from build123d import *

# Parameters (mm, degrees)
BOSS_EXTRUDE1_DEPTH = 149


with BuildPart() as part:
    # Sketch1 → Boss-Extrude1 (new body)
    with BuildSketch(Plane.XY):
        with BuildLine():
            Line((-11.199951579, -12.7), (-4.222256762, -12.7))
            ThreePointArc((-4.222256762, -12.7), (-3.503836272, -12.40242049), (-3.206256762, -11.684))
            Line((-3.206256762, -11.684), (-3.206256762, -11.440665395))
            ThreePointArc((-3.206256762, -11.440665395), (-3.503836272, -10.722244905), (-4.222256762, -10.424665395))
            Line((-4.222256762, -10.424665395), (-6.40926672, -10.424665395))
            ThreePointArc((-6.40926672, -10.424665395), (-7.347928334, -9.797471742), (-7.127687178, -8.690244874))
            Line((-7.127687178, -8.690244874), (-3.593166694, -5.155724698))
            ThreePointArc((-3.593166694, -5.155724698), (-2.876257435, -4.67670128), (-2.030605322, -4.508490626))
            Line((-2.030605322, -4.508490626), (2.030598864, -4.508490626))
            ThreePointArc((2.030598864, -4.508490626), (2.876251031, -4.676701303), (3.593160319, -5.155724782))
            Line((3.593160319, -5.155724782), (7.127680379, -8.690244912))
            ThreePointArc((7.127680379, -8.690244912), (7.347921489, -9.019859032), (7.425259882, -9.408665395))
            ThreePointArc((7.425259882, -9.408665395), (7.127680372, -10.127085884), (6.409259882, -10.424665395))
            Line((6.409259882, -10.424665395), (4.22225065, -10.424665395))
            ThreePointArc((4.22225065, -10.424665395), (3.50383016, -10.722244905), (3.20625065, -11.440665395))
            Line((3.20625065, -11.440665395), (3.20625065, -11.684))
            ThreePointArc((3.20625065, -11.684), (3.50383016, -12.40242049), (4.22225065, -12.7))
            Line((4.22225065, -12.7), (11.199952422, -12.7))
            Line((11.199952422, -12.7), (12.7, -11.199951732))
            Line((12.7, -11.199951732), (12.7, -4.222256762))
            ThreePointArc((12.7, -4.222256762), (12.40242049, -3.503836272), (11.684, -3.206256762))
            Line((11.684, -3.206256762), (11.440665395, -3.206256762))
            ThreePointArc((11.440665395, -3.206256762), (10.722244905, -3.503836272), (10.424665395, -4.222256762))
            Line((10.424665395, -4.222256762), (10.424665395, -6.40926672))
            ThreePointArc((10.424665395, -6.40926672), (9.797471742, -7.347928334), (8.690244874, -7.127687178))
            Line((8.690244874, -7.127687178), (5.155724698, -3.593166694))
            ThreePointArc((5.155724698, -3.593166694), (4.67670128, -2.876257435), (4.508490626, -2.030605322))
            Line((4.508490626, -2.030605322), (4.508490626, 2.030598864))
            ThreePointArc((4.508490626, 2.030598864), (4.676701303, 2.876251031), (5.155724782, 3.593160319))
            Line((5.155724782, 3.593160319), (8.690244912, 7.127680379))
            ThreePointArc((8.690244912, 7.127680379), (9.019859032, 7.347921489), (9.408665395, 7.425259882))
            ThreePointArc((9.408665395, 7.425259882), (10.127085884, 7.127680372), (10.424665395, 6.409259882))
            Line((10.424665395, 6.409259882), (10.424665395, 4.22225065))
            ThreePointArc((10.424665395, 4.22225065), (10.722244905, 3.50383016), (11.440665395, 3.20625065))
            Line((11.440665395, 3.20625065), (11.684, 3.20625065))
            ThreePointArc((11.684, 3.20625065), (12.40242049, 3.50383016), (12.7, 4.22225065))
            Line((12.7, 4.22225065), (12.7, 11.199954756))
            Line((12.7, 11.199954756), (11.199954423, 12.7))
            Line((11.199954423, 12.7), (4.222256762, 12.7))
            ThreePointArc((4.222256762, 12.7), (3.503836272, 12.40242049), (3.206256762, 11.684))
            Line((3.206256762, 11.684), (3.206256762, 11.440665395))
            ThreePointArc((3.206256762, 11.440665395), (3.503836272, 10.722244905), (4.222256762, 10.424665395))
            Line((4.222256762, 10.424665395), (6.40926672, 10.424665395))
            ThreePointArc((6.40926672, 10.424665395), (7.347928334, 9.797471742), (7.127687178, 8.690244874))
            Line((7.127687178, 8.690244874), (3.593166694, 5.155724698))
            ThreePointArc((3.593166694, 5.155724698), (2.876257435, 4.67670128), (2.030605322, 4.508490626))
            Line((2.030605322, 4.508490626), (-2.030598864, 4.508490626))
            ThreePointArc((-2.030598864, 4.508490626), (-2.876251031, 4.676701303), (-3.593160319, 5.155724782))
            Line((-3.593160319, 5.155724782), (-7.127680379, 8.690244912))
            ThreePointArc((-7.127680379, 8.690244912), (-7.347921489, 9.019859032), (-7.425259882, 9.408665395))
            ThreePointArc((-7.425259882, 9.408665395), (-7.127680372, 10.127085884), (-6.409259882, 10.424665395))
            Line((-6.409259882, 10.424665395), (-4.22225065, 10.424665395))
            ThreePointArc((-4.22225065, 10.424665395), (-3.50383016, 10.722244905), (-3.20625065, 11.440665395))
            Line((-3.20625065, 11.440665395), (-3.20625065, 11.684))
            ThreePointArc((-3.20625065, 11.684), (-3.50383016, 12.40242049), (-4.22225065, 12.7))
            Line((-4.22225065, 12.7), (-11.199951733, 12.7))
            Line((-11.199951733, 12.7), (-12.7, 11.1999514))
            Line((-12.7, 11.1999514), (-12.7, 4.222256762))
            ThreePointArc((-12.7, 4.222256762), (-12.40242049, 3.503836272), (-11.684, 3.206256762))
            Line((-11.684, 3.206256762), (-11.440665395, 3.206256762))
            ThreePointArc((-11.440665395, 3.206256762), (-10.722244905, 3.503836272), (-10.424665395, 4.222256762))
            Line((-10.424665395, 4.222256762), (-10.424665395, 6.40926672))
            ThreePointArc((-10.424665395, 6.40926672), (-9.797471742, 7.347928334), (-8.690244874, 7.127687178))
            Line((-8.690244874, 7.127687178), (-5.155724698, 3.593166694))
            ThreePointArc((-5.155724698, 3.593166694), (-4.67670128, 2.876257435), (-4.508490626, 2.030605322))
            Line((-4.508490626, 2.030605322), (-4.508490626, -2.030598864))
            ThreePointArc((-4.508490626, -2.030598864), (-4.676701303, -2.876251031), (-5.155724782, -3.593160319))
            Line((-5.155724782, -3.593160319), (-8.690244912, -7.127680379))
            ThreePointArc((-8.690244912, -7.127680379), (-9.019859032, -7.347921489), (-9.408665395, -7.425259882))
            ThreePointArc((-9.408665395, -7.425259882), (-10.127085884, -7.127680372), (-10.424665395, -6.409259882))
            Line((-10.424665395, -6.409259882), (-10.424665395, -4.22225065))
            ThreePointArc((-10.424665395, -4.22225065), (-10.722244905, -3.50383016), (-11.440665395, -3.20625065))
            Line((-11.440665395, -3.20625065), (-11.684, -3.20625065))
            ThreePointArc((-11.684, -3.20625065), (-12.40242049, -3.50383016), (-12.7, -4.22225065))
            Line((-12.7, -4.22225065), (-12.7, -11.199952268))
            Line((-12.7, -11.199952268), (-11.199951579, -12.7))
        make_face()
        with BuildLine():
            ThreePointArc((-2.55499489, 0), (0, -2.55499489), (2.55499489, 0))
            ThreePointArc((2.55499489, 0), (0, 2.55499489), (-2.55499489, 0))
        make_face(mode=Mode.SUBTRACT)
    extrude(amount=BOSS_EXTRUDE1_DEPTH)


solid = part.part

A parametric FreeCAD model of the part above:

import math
import FreeCAD as App
import Part
import Sketcher
from FreeCAD import Vector

doc = App.newDocument("Part")
body = doc.addObject("PartDesign::Body", "Body")

# Sketch on XY plane
sketch1 = body.newObject("Sketcher::SketchObject", "Sketch")
sketch1.AttachmentSupport = (doc.getObject("XY_Plane"), [""])
sketch1.MapMode = "FlatFace"
sketch1.addGeometry([
    Part.LineSegment(Vector(-11.2, -12.7, 0), Vector(-4.22, -12.7, 0)),  # 0
    Part.ArcOfCircle(Part.Circle(Vector(-4.22, -11.68, 0), Vector(0, 0, 1), 1.02), math.radians(-90), math.radians(0)),  # 1
    Part.LineSegment(Vector(-3.21, -11.68, 0), Vector(-3.21, -11.44, 0)),  # 2
    Part.ArcOfCircle(Part.Circle(Vector(-4.22, -11.44, 0), Vector(0, 0, 1), 1.02), math.radians(0), math.radians(90)),  # 3
    Part.LineSegment(Vector(-4.22, -10.42, 0), Vector(-6.41, -10.42, 0)),  # 4
    Part.ArcOfCircle(Part.Circle(Vector(-6.41, -9.41, 0), Vector(0, 0, 1), 1.02), math.radians(135), math.radians(270)),  # 5
    Part.LineSegment(Vector(-7.13, -8.69, 0), Vector(-3.59, -5.16, 0)),  # 6
    Part.ArcOfCircle(Part.Circle(Vector(-2.03, -6.72, 0), Vector(0, 0, 1), 2.21), math.radians(90), math.radians(135)),  # 7
    Part.LineSegment(Vector(-2.03, -4.51, 0), Vector(2.03, -4.51, 0)),  # 8
    Part.ArcOfCircle(Part.Circle(Vector(2.03, -6.72, 0), Vector(0, 0, 1), 2.21), math.radians(45), math.radians(90)),  # 9
    Part.LineSegment(Vector(3.59, -5.16, 0), Vector(7.13, -8.69, 0)),  # 10
    Part.ArcOfCircle(Part.Circle(Vector(6.41, -9.41, 0), Vector(0, 0, 1), 1.02), math.radians(0), math.radians(45)),  # 11
    Part.ArcOfCircle(Part.Circle(Vector(6.41, -9.41, 0), Vector(0, 0, 1), 1.02), math.radians(-90), math.radians(0)),  # 12
    Part.LineSegment(Vector(6.41, -10.42, 0), Vector(4.22, -10.42, 0)),  # 13
    Part.ArcOfCircle(Part.Circle(Vector(4.22, -11.44, 0), Vector(0, 0, 1), 1.02), math.radians(90), math.radians(180)),  # 14
    Part.LineSegment(Vector(3.21, -11.44, 0), Vector(3.21, -11.68, 0)),  # 15
    Part.ArcOfCircle(Part.Circle(Vector(4.22, -11.68, 0), Vector(0, 0, 1), 1.02), math.radians(180), math.radians(270)),  # 16
    Part.LineSegment(Vector(4.22, -12.7, 0), Vector(11.2, -12.7, 0)),  # 17
    Part.LineSegment(Vector(11.2, -12.7, 0), Vector(12.7, -11.2, 0)),  # 18
    Part.LineSegment(Vector(12.7, -11.2, 0), Vector(12.7, -4.22, 0)),  # 19
    Part.ArcOfCircle(Part.Circle(Vector(11.68, -4.22, 0), Vector(0, 0, 1), 1.02), math.radians(0), math.radians(90)),  # 20
    Part.LineSegment(Vector(11.68, -3.21, 0), Vector(11.44, -3.21, 0)),  # 21
    Part.ArcOfCircle(Part.Circle(Vector(11.44, -4.22, 0), Vector(0, 0, 1), 1.02), math.radians(90), math.radians(180)),  # 22
    Part.LineSegment(Vector(10.42, -4.22, 0), Vector(10.42, -6.41, 0)),  # 23
    Part.ArcOfCircle(Part.Circle(Vector(9.41, -6.41, 0), Vector(0, 0, 1), 1.02), math.radians(-135), math.radians(0)),  # 24
    Part.LineSegment(Vector(8.69, -7.13, 0), Vector(5.16, -3.59, 0)),  # 25
    Part.ArcOfCircle(Part.Circle(Vector(6.72, -2.03, 0), Vector(0, 0, 1), 2.21), math.radians(180), math.radians(225)),  # 26
    Part.LineSegment(Vector(4.51, -2.03, 0), Vector(4.51, 2.03, 0)),  # 27
    Part.ArcOfCircle(Part.Circle(Vector(6.72, 2.03, 0), Vector(0, 0, 1), 2.21), math.radians(135), math.radians(180)),  # 28
    Part.LineSegment(Vector(5.16, 3.59, 0), Vector(8.69, 7.13, 0)),  # 29
    Part.ArcOfCircle(Part.Circle(Vector(9.41, 6.41, 0), Vector(0, 0, 1), 1.02), math.radians(90), math.radians(135)),  # 30
    Part.ArcOfCircle(Part.Circle(Vector(9.41, 6.41, 0), Vector(0, 0, 1), 1.02), math.radians(0), math.radians(90)),  # 31
    Part.LineSegment(Vector(10.42, 6.41, 0), Vector(10.42, 4.22, 0)),  # 32
    Part.ArcOfCircle(Part.Circle(Vector(11.44, 4.22, 0), Vector(0, 0, 1), 1.02), math.radians(180), math.radians(270)),  # 33
    Part.LineSegment(Vector(11.44, 3.21, 0), Vector(11.68, 3.21, 0)),  # 34
    Part.ArcOfCircle(Part.Circle(Vector(11.68, 4.22, 0), Vector(0, 0, 1), 1.02), math.radians(-90), math.radians(0)),  # 35
    Part.LineSegment(Vector(12.7, 4.22, 0), Vector(12.7, 11.2, 0)),  # 36
    Part.LineSegment(Vector(12.7, 11.2, 0), Vector(11.2, 12.7, 0)),  # 37
    Part.LineSegment(Vector(11.2, 12.7, 0), Vector(4.22, 12.7, 0)),  # 38
    Part.ArcOfCircle(Part.Circle(Vector(4.22, 11.68, 0), Vector(0, 0, 1), 1.02), math.radians(90), math.radians(180)),  # 39
    Part.LineSegment(Vector(3.21, 11.68, 0), Vector(3.21, 11.44, 0)),  # 40
    Part.ArcOfCircle(Part.Circle(Vector(4.22, 11.44, 0), Vector(0, 0, 1), 1.02), math.radians(180), math.radians(270)),  # 41
    Part.LineSegment(Vector(4.22, 10.42, 0), Vector(6.41, 10.42, 0)),  # 42
    Part.ArcOfCircle(Part.Circle(Vector(6.41, 9.41, 0), Vector(0, 0, 1), 1.02), math.radians(-45), math.radians(90)),  # 43
    Part.LineSegment(Vector(7.13, 8.69, 0), Vector(3.59, 5.16, 0)),  # 44
    Part.ArcOfCircle(Part.Circle(Vector(2.03, 6.72, 0), Vector(0, 0, 1), 2.21), math.radians(-90), math.radians(-45)),  # 45
    Part.LineSegment(Vector(2.03, 4.51, 0), Vector(-2.03, 4.51, 0)),  # 46
    Part.ArcOfCircle(Part.Circle(Vector(-2.03, 6.72, 0), Vector(0, 0, 1), 2.21), math.radians(-135), math.radians(-90)),  # 47
    Part.LineSegment(Vector(-3.59, 5.16, 0), Vector(-7.13, 8.69, 0)),  # 48
    Part.ArcOfCircle(Part.Circle(Vector(-6.41, 9.41, 0), Vector(0, 0, 1), 1.02), math.radians(180), math.radians(225)),  # 49
    Part.ArcOfCircle(Part.Circle(Vector(-6.41, 9.41, 0), Vector(0, 0, 1), 1.02), math.radians(90), math.radians(180)),  # 50
    Part.LineSegment(Vector(-6.41, 10.42, 0), Vector(-4.22, 10.42, 0)),  # 51
    Part.ArcOfCircle(Part.Circle(Vector(-4.22, 11.44, 0), Vector(0, 0, 1), 1.02), math.radians(-90), math.radians(0)),  # 52
    Part.LineSegment(Vector(-3.21, 11.44, 0), Vector(-3.21, 11.68, 0)),  # 53
    Part.ArcOfCircle(Part.Circle(Vector(-4.22, 11.68, 0), Vector(0, 0, 1), 1.02), math.radians(0), math.radians(90)),  # 54
    Part.LineSegment(Vector(-4.22, 12.7, 0), Vector(-11.2, 12.7, 0)),  # 55
    Part.LineSegment(Vector(-11.2, 12.7, 0), Vector(-12.7, 11.2, 0)),  # 56
    Part.LineSegment(Vector(-12.7, 11.2, 0), Vector(-12.7, 4.22, 0)),  # 57
    Part.ArcOfCircle(Part.Circle(Vector(-11.68, 4.22, 0), Vector(0, 0, 1), 1.02), math.radians(180), math.radians(270)),  # 58
    Part.LineSegment(Vector(-11.68, 3.21, 0), Vector(-11.44, 3.21, 0)),  # 59
    Part.ArcOfCircle(Part.Circle(Vector(-11.44, 4.22, 0), Vector(0, 0, 1), 1.02), math.radians(-90), math.radians(0)),  # 60
    Part.LineSegment(Vector(-10.42, 4.22, 0), Vector(-10.42, 6.41, 0)),  # 61
    Part.ArcOfCircle(Part.Circle(Vector(-9.41, 6.41, 0), Vector(0, 0, 1), 1.02), math.radians(45), math.radians(180)),  # 62
    Part.LineSegment(Vector(-8.69, 7.13, 0), Vector(-5.16, 3.59, 0)),  # 63
    Part.ArcOfCircle(Part.Circle(Vector(-6.72, 2.03, 0), Vector(0, 0, 1), 2.21), math.radians(0), math.radians(45)),  # 64
    Part.LineSegment(Vector(-4.51, 2.03, 0), Vector(-4.51, -2.03, 0)),  # 65
    Part.ArcOfCircle(Part.Circle(Vector(-6.72, -2.03, 0), Vector(0, 0, 1), 2.21), math.radians(-45), math.radians(0)),  # 66
    Part.LineSegment(Vector(-5.16, -3.59, 0), Vector(-8.69, -7.13, 0)),  # 67
    Part.ArcOfCircle(Part.Circle(Vector(-9.41, -6.41, 0), Vector(0, 0, 1), 1.02), math.radians(-90), math.radians(-45)),  # 68
    Part.ArcOfCircle(Part.Circle(Vector(-9.41, -6.41, 0), Vector(0, 0, 1), 1.02), math.radians(-180), math.radians(-90)),  # 69
    Part.LineSegment(Vector(-10.42, -6.41, 0), Vector(-10.42, -4.22, 0)),  # 70
    Part.ArcOfCircle(Part.Circle(Vector(-11.44, -4.22, 0), Vector(0, 0, 1), 1.02), math.radians(0), math.radians(90)),  # 71
    Part.LineSegment(Vector(-11.44, -3.21, 0), Vector(-11.68, -3.21, 0)),  # 72
    Part.ArcOfCircle(Part.Circle(Vector(-11.68, -4.22, 0), Vector(0, 0, 1), 1.02), math.radians(90), math.radians(180)),  # 73
    Part.LineSegment(Vector(-12.7, -4.22, 0), Vector(-12.7, -11.2, 0)),  # 74
    Part.LineSegment(Vector(-12.7, -11.2, 0), Vector(-11.2, -12.7, 0)),  # 75
    Part.Circle(Vector(0, 0, 0), Vector(0, 0, 1), 2.55),  # 76
], False)
sketch1.addConstraint([
    Sketcher.Constraint("Tangent", 0, 2, 1, 1),
    Sketcher.Constraint("Tangent", 1, 2, 2, 1),
    Sketcher.Constraint("Tangent", 2, 2, 3, 1),
    Sketcher.Constraint("Tangent", 3, 2, 4, 1),
    Sketcher.Constraint("Tangent", 4, 2, 5, 2),
    Sketcher.Constraint("Tangent", 5, 1, 6, 1),
    Sketcher.Constraint("Tangent", 6, 2, 7, 2),
    Sketcher.Constraint("Tangent", 7, 1, 8, 1),
    Sketcher.Constraint("Tangent", 8, 2, 9, 2),
    Sketcher.Constraint("Tangent", 9, 1, 10, 1),
    Sketcher.Constraint("Tangent", 10, 2, 11, 2),
    Sketcher.Constraint("Tangent", 11, 1, 12, 2),
    Sketcher.Constraint("Tangent", 12, 1, 13, 1),
    Sketcher.Constraint("Tangent", 13, 2, 14, 1),
    Sketcher.Constraint("Tangent", 14, 2, 15, 1),
    Sketcher.Constraint("Tangent", 15, 2, 16, 1),
    Sketcher.Constraint("Tangent", 16, 2, 17, 1),
    Sketcher.Constraint("Coincident", 17, 2, 18, 1),
    Sketcher.Constraint("Coincident", 18, 2, 19, 1),
    Sketcher.Constraint("Tangent", 19, 2, 20, 1),
    Sketcher.Constraint("Tangent", 20, 2, 21, 1),
    Sketcher.Constraint("Tangent", 21, 2, 22, 1),
    Sketcher.Constraint("Tangent", 22, 2, 23, 1),
    Sketcher.Constraint("Tangent", 23, 2, 24, 2),
    Sketcher.Constraint("Tangent", 24, 1, 25, 1),
    Sketcher.Constraint("Tangent", 25, 2, 26, 2),
    Sketcher.Constraint("Tangent", 26, 1, 27, 1),
    Sketcher.Constraint("Tangent", 27, 2, 28, 2),
    Sketcher.Constraint("Tangent", 28, 1, 29, 1),
    Sketcher.Constraint("Tangent", 29, 2, 30, 2),
    Sketcher.Constraint("Tangent", 30, 1, 31, 2),
    Sketcher.Constraint("Tangent", 31, 1, 32, 1),
    Sketcher.Constraint("Tangent", 32, 2, 33, 1),
    Sketcher.Constraint("Tangent", 33, 2, 34, 1),
    Sketcher.Constraint("Tangent", 34, 2, 35, 1),
    Sketcher.Constraint("Tangent", 35, 2, 36, 1),
    Sketcher.Constraint("Coincident", 36, 2, 37, 1),
    Sketcher.Constraint("Coincident", 37, 2, 38, 1),
    Sketcher.Constraint("Tangent", 38, 2, 39, 1),
    Sketcher.Constraint("Tangent", 39, 2, 40, 1),
    Sketcher.Constraint("Tangent", 40, 2, 41, 1),
    Sketcher.Constraint("Tangent", 41, 2, 42, 1),
    Sketcher.Constraint("Tangent", 42, 2, 43, 2),
    Sketcher.Constraint("Tangent", 43, 1, 44, 1),
    Sketcher.Constraint("Tangent", 44, 2, 45, 2),
    Sketcher.Constraint("Tangent", 45, 1, 46, 1),
    Sketcher.Constraint("Tangent", 46, 2, 47, 2),
    Sketcher.Constraint("Tangent", 47, 1, 48, 1),
    Sketcher.Constraint("Tangent", 48, 2, 49, 2),
    Sketcher.Constraint("Tangent", 49, 1, 50, 2),
    Sketcher.Constraint("Tangent", 50, 1, 51, 1),
    Sketcher.Constraint("Tangent", 51, 2, 52, 1),
    Sketcher.Constraint("Tangent", 52, 2, 53, 1),
    Sketcher.Constraint("Tangent", 53, 2, 54, 1),
    Sketcher.Constraint("Tangent", 54, 2, 55, 1),
    Sketcher.Constraint("Coincident", 55, 2, 56, 1),
    Sketcher.Constraint("Coincident", 56, 2, 57, 1),
    Sketcher.Constraint("Tangent", 57, 2, 58, 1),
    Sketcher.Constraint("Tangent", 58, 2, 59, 1),
    Sketcher.Constraint("Tangent", 59, 2, 60, 1),
    Sketcher.Constraint("Tangent", 60, 2, 61, 1),
    Sketcher.Constraint("Tangent", 61, 2, 62, 2),
    Sketcher.Constraint("Tangent", 62, 1, 63, 1),
    Sketcher.Constraint("Tangent", 63, 2, 64, 2),
    Sketcher.Constraint("Tangent", 64, 1, 65, 1),
    Sketcher.Constraint("Tangent", 65, 2, 66, 2),
    Sketcher.Constraint("Tangent", 66, 1, 67, 1),
    Sketcher.Constraint("Tangent", 67, 2, 68, 2),
    Sketcher.Constraint("Tangent", 68, 1, 69, 2),
    Sketcher.Constraint("Tangent", 69, 1, 70, 1),
    Sketcher.Constraint("Tangent", 70, 2, 71, 1),
    Sketcher.Constraint("Tangent", 71, 2, 72, 1),
    Sketcher.Constraint("Tangent", 72, 2, 73, 1),
    Sketcher.Constraint("Tangent", 73, 2, 74, 1),
    Sketcher.Constraint("Coincident", 74, 2, 75, 1),
    Sketcher.Constraint("Coincident", 75, 2, 0, 1),
    Sketcher.Constraint("Horizontal", 0),
    Sketcher.Constraint("Vertical", 2),
    Sketcher.Constraint("Horizontal", 4),
    Sketcher.Constraint("Horizontal", 8),
    Sketcher.Constraint("Horizontal", 13),
    Sketcher.Constraint("Vertical", 15),
    Sketcher.Constraint("Horizontal", 17),
    Sketcher.Constraint("Vertical", 19),
    Sketcher.Constraint("Horizontal", 21),
    Sketcher.Constraint("Vertical", 23),
    Sketcher.Constraint("Vertical", 27),
    Sketcher.Constraint("Vertical", 32),
    Sketcher.Constraint("Horizontal", 34),
    Sketcher.Constraint("Vertical", 36),
    Sketcher.Constraint("Horizontal", 38),
    Sketcher.Constraint("Vertical", 40),
    Sketcher.Constraint("Horizontal", 42),
    Sketcher.Constraint("Horizontal", 46),
    Sketcher.Constraint("Horizontal", 51),
    Sketcher.Constraint("Vertical", 53),
    Sketcher.Constraint("Horizontal", 55),
    Sketcher.Constraint("Vertical", 57),
    Sketcher.Constraint("Horizontal", 59),
    Sketcher.Constraint("Vertical", 61),
    Sketcher.Constraint("Vertical", 65),
    Sketcher.Constraint("Vertical", 70),
    Sketcher.Constraint("Horizontal", 72),
    Sketcher.Constraint("Vertical", 74),
    Sketcher.Constraint("Coincident", 76, 3, -1, 1),
    Sketcher.Constraint("Equal", 1, 3),
    Sketcher.Constraint("Equal", 3, 5),
    Sketcher.Constraint("Equal", 7, 9),
    Sketcher.Constraint("Equal", 5, 11),
    Sketcher.Constraint("Equal", 11, 12),
    Sketcher.Constraint("Equal", 12, 14),
    Sketcher.Constraint("Equal", 14, 16),
    Sketcher.Constraint("Equal", 16, 20),
    Sketcher.Constraint("Equal", 20, 22),
    Sketcher.Constraint("Equal", 22, 24),
    Sketcher.Constraint("Equal", 9, 26),
    Sketcher.Constraint("Equal", 26, 28),
    Sketcher.Constraint("Equal", 24, 30),
    Sketcher.Constraint("Equal", 30, 31),
    Sketcher.Constraint("Equal", 31, 33),
    Sketcher.Constraint("Equal", 33, 35),
    Sketcher.Constraint("Equal", 35, 39),
    Sketcher.Constraint("Equal", 39, 41),
    Sketcher.Constraint("Equal", 41, 43),
    Sketcher.Constraint("Equal", 28, 45),
    Sketcher.Constraint("Equal", 45, 47),
    Sketcher.Constraint("Equal", 43, 49),
    Sketcher.Constraint("Equal", 49, 50),
    Sketcher.Constraint("Equal", 50, 52),
    Sketcher.Constraint("Equal", 52, 54),
    Sketcher.Constraint("Equal", 54, 58),
    Sketcher.Constraint("Equal", 58, 60),
    Sketcher.Constraint("Equal", 60, 62),
    Sketcher.Constraint("Equal", 47, 64),
    Sketcher.Constraint("Equal", 64, 66),
    Sketcher.Constraint("Equal", 62, 68),
    Sketcher.Constraint("Equal", 68, 69),
    Sketcher.Constraint("Equal", 69, 71),
    Sketcher.Constraint("Equal", 71, 73),
    Sketcher.Constraint("Symmetric", 1, 3, 39, 3, -1, 1),
    Sketcher.Constraint("Symmetric", 5, 3, 43, 3, -1, 1),
    Sketcher.Constraint("Symmetric", 7, 3, 45, 3, -1, 1),
    Sketcher.Constraint("Symmetric", 11, 3, 49, 3, -1, 1),
    Sketcher.Constraint("Symmetric", 16, 3, 54, 3, -1, 1),
    Sketcher.Constraint("Symmetric", 20, 3, 58, 3, -1, 1),
    Sketcher.Constraint("Symmetric", 24, 3, 62, 3, -1, 1),
    Sketcher.Constraint("Symmetric", 26, 3, 64, 3, -1, 1),
    Sketcher.Constraint("Symmetric", 30, 3, 68, 3, -1, 1),
    Sketcher.Constraint("Symmetric", 35, 3, 73, 3, -1, 1),
    Sketcher.Constraint("Symmetric", 5, 3, 11, 3, -2),
    Sketcher.Constraint("Symmetric", 1, 3, 16, 3, -2),
    Sketcher.Constraint("Symmetric", 35, 3, 58, 3, -2),
    Sketcher.Constraint("Symmetric", 30, 3, 62, 3, -2),
    Sketcher.Constraint("Perpendicular", 6, 10),
    Sketcher.Constraint("Perpendicular", 10, 18),
    Sketcher.Constraint("Perpendicular", 18, 25),
    Sketcher.Constraint("Perpendicular", 25, 29),
    Sketcher.Constraint("Perpendicular", 29, 37),
    Sketcher.Constraint("Perpendicular", 44, 48),
    Sketcher.Constraint("Perpendicular", 48, 56),
    Sketcher.Constraint("Perpendicular", 63, 67),
    Sketcher.Constraint("Perpendicular", 67, 75),
    Sketcher.Constraint("Horizontal", 6, 2, 9, 1),
    Sketcher.Constraint("Horizontal", 12, 3, 11, 1),
    Sketcher.Constraint("Horizontal", 50, 3, 49, 1),
    Sketcher.Constraint("Horizontal", 18, 2, 74, 2),
    Sketcher.Constraint("Vertical", 31, 3, 30, 1),
    Sketcher.Constraint("Vertical", 69, 3, 68, 1),
    Sketcher.Constraint("Vertical", 55, 2, 75, 2),
    Sketcher.Constraint("Equal", 72, 2),
    Sketcher.Constraint("Equal", 0, 19),
    Sketcher.Constraint("Equal", 51, 23),
    Sketcher.Constraint("Equal", 46, 27),
    Sketcher.Constraint("Equal", 10, 25),
    Sketcher.Constraint("Radius", 1, 1.016),
    Sketcher.Constraint("DistanceY", 0, 2, -1, 1, 12.7),
    Sketcher.Constraint("Diameter", 76, 5.10999),
    Sketcher.Constraint("DistanceX", 17, 1, 17, 2, 6.977702),
    Sketcher.Constraint("Radius", 7, 2.209796),
    Sketcher.Constraint("DistanceX", 4, 2, 4, 1, 2.18701),
    Sketcher.Constraint("DistanceX", -1, 1, 9, 3, 2.030599),
    Sketcher.Constraint("Distance", 18, 2.121388),
    Sketcher.Constraint("DistanceX", 21, 2, 21, 1, 0.243335),
    Sketcher.Constraint("DistanceX", 38, 2, 38, 1, 6.977698),
])
pad1 = body.newObject("PartDesign::Pad", "Pad")
pad1.Profile = sketch1
pad1.Length = 149

doc.recompute()
